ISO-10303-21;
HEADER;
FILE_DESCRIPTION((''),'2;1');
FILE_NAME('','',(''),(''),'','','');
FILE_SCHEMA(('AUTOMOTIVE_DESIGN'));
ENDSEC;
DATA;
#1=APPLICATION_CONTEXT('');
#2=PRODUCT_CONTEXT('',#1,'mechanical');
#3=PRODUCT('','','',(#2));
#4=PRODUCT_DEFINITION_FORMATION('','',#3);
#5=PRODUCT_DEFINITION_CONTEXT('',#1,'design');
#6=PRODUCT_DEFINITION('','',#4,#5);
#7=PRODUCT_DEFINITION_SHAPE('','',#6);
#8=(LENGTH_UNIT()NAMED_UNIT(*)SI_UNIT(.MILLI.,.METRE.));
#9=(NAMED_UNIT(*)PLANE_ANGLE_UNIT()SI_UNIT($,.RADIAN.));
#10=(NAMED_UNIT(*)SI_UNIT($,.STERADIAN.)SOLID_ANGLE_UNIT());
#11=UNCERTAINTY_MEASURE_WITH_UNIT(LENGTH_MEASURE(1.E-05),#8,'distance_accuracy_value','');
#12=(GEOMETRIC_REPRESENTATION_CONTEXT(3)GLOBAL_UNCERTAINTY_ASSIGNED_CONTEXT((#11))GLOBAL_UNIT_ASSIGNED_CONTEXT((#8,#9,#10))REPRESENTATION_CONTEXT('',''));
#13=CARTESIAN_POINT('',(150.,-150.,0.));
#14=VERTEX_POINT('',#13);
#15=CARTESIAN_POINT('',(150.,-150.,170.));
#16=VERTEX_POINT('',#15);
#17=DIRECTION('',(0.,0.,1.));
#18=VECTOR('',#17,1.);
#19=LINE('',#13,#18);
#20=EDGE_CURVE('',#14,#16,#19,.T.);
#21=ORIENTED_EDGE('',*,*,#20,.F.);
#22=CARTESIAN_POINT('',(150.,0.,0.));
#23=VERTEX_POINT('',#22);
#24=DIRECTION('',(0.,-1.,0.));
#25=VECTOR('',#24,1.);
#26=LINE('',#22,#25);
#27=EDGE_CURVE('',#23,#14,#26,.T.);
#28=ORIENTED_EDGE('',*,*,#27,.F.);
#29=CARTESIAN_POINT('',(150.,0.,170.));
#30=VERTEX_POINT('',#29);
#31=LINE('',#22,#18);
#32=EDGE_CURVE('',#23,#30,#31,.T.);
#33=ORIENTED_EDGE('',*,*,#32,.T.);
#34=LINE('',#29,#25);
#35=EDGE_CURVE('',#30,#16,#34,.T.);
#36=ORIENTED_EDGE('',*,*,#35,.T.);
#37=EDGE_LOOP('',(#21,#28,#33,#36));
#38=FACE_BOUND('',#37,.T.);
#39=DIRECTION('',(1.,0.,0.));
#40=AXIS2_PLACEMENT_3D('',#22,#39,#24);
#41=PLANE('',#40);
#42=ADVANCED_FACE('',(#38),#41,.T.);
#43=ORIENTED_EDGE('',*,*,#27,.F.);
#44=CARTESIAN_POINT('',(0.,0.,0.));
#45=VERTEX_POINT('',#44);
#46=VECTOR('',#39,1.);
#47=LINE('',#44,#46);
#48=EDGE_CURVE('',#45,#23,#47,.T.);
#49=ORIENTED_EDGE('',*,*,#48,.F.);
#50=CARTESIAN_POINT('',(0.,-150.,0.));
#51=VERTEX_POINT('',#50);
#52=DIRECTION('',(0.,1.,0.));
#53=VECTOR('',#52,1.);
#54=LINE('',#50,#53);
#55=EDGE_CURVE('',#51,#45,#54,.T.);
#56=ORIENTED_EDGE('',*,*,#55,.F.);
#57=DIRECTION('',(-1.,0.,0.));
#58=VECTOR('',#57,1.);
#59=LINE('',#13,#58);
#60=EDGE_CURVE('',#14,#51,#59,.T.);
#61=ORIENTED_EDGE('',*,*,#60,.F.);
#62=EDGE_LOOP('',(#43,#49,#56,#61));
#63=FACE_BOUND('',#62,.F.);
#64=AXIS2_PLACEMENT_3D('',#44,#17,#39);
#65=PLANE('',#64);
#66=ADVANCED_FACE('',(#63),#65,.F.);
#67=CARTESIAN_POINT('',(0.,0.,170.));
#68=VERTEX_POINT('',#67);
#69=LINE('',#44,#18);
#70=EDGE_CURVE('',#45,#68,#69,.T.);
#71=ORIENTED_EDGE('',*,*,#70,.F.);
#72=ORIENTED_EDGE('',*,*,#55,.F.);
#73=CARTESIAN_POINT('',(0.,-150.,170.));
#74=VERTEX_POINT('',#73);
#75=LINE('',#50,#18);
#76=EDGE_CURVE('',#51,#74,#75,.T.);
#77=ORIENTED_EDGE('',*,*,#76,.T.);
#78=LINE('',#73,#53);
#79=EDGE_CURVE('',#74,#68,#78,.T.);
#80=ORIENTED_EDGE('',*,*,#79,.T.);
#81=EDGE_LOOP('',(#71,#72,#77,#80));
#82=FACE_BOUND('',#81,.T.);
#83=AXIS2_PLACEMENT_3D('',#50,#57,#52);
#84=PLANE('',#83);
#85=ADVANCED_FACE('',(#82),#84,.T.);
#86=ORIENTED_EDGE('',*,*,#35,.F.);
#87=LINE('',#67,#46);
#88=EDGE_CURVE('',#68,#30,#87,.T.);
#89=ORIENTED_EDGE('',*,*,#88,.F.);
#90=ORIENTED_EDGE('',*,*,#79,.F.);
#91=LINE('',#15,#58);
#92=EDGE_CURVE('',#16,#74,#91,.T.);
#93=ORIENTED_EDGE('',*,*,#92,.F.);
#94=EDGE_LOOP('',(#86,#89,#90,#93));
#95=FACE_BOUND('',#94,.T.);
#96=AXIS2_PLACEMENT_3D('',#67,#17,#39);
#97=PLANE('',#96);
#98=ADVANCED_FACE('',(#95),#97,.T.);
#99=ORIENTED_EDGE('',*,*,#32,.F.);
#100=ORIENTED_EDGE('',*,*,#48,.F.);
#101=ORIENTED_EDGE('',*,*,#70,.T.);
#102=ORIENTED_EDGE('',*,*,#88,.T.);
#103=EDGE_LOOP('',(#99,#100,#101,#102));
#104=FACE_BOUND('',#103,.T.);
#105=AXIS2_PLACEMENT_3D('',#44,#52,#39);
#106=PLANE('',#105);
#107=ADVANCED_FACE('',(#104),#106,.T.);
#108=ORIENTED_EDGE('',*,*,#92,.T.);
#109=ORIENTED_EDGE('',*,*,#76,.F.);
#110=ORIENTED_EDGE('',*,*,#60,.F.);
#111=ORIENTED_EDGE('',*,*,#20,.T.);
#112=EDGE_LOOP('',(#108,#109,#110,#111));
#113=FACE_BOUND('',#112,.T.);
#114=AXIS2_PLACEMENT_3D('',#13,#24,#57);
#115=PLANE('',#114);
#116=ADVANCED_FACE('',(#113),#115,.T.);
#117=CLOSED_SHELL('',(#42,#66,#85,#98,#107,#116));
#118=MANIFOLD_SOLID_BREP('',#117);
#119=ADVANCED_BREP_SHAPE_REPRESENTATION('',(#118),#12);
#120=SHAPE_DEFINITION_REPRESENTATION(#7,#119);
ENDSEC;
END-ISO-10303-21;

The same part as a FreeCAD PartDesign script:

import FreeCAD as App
import Part
import Sketcher
Q = App.Units.Quantity

doc = App.newDocument("Part")
body = doc.addObject("PartDesign::Body", "Body")

# Sketch on XY plane
sketch1 = doc.addObject("Sketcher::SketchObject", "Sketch")
body.addObject(sketch1)
sketch1.AttachmentSupport = (doc.XY_Plane, [""])
sketch1.MapMode = "FlatFace"
sketch1.addGeometry([
    Part.LineSegment(App.Vector(150, 0, 0), App.Vector(0, 0, 0)),
    Part.LineSegment(App.Vector(0, 0, 0), App.Vector(0, -150, 0)),
    Part.LineSegment(App.Vector(0, -150, 0), App.Vector(150, -150, 0)),
    Part.LineSegment(App.Vector(150, -150, 0), App.Vector(150, 0, 0)),
], False)
sketch1.addConstraint([
    Sketcher.Constraint("Coincident", 0, 2, 1, 1),
    Sketcher.Constraint("Coincident", 1, 2, 2, 1),
    Sketcher.Constraint("Coincident", 2, 2, 3, 1),
    Sketcher.Constraint("Coincident", 3, 2, 0, 1),
    Sketcher.Constraint("Horizontal", 0),
    Sketcher.Constraint("Vertical", 1),
    Sketcher.Constraint("Horizontal", 2),
    Sketcher.Constraint("Vertical", 3),
    Sketcher.Constraint("Coincident", 0, 2, -1, 1),
    Sketcher.Constraint("Equal", 2, 1),
    Sketcher.Constraint("DistanceX", 0, 2, 0, 1, Q("150 mm")),
])
pad1 = doc.addObject("PartDesign::Pad", "Pad")
body.addObject(pad1)
pad1.Profile = sketch1
pad1.Length = 170

doc.recompute()
